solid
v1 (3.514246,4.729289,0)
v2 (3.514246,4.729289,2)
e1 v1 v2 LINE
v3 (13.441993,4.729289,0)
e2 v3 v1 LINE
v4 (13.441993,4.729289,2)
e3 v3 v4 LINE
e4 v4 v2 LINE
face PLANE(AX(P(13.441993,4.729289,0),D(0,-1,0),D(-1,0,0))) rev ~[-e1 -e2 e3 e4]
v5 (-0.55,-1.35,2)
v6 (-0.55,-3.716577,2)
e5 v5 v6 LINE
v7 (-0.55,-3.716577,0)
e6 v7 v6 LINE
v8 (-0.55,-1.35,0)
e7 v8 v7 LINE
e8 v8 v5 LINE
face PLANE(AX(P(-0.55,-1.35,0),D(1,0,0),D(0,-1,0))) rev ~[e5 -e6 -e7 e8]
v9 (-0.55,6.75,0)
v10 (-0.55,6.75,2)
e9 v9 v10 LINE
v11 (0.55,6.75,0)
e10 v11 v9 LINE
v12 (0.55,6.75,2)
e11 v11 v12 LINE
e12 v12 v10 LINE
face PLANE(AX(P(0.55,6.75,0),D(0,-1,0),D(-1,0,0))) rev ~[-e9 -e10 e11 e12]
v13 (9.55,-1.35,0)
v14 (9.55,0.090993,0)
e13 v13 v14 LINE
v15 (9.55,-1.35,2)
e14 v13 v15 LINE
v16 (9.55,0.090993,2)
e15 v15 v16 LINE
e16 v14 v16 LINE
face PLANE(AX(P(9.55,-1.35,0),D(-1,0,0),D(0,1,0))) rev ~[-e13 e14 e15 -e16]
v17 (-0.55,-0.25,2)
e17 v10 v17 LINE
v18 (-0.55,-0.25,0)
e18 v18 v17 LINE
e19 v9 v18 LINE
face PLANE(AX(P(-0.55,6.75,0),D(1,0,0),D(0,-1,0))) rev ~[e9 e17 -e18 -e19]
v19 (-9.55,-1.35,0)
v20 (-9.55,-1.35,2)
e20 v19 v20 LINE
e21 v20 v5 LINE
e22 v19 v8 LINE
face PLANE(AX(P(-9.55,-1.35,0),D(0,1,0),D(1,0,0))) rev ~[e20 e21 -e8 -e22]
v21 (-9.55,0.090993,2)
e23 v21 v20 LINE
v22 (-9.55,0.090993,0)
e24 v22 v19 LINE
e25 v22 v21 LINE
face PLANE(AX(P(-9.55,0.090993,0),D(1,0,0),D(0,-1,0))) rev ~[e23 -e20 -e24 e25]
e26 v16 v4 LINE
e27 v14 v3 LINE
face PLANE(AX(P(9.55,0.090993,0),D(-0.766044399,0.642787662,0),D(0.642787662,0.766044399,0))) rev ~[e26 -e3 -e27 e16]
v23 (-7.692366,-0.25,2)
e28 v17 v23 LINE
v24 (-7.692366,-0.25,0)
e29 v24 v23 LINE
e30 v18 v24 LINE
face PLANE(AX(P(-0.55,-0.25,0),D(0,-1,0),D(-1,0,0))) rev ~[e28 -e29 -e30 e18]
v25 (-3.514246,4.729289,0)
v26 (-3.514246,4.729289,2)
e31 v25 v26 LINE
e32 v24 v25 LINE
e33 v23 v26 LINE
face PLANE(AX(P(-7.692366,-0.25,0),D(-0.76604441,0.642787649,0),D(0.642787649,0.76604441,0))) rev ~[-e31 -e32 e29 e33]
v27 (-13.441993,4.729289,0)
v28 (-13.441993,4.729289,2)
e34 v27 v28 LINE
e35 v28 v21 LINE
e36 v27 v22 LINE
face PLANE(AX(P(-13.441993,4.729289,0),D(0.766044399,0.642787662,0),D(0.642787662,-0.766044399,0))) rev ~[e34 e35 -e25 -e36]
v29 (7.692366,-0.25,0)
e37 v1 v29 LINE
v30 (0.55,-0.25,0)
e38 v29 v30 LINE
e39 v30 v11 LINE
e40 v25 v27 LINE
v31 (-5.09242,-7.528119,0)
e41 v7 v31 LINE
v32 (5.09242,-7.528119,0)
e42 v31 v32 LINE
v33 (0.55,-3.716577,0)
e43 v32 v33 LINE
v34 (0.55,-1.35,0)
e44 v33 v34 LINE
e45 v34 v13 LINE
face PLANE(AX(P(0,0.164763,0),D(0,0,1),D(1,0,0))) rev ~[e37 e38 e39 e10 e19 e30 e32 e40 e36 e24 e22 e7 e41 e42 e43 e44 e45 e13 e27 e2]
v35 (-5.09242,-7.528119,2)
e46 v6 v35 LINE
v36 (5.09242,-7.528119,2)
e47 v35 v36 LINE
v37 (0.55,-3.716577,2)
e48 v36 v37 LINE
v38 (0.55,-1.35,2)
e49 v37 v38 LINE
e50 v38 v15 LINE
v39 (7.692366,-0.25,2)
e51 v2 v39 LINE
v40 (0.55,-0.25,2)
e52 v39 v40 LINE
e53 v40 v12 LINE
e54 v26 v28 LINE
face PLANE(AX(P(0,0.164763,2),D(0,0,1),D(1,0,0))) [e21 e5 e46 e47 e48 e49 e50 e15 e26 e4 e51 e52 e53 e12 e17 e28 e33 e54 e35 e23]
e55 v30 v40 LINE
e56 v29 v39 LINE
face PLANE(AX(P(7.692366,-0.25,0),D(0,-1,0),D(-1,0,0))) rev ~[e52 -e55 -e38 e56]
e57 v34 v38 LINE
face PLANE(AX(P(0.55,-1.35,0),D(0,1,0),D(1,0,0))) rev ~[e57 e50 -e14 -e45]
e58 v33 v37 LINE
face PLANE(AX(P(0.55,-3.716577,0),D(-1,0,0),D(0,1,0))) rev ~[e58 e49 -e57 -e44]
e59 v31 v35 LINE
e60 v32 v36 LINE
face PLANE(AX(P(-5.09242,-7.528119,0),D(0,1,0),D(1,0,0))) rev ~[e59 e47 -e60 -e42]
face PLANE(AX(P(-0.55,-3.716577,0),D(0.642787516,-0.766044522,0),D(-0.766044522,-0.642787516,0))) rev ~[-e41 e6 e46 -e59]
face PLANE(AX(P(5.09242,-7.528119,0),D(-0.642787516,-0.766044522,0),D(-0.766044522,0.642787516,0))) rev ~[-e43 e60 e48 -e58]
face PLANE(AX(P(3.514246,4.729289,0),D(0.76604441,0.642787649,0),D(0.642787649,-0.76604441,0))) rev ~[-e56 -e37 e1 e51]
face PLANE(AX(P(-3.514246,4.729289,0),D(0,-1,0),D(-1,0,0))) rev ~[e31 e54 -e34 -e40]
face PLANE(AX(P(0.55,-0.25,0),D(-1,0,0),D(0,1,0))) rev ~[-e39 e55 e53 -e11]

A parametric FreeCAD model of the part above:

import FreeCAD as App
import Part
import Sketcher
Q = App.Units.Quantity

doc = App.newDocument("Part")
body = doc.addObject("PartDesign::Body", "Body")

# Sketch on XY plane
sketch1 = doc.addObject("Sketcher::SketchObject", "Sketch")
body.addObject(sketch1)
sketch1.AttachmentSupport = (doc.XY_Plane, [""])
sketch1.MapMode = "FlatFace"
sketch1.addGeometry(Part.LineSegment(App.Vector(-9.6, 0.1, 0), App.Vector(-9.6, -1.4, 0)), False)
sketch1.addGeometry(Part.LineSegment(App.Vector(-9.6, -1.4, 0), App.Vector(-0.6, -1.4, 0)), False)
sketch1.addGeometry(Part.LineSegment(App.Vector(-0.6, -1.4, 0), App.Vector(-0.6, -3.7, 0)), False)
sketch1.addGeometry(Part.LineSegment(App.Vector(-0.6, -3.7, 0), App.Vector(-5.1, -7.5, 0)), False)
sketch1.addGeometry(Part.LineSegment(App.Vector(-5.1, -7.5, 0), App.Vector(5.1, -7.5, 0)), False)
sketch1.addGeometry(Part.LineSegment(App.Vector(5.1, -7.5, 0), App.Vector(0.6, -3.7, 0)), False)
sketch1.addGeometry(Part.LineSegment(App.Vector(0.6, -3.7, 0), App.Vector(0.6, -1.4, 0)), False)
sketch1.addGeometry(Part.LineSegment(App.Vector(0.6, -1.4, 0), App.Vector(9.6, -1.4, 0)), False)
sketch1.addGeometry(Part.LineSegment(App.Vector(9.6, -1.4, 0), App.Vector(9.6, 0.1, 0)), False)
sketch1.addGeometry(Part.LineSegment(App.Vector(9.6, 0.1, 0), App.Vector(13.4, 4.7, 0)), False)
sketch1.addGeometry(Part.LineSegment(App.Vector(13.4, 4.7, 0), App.Vector(3.5, 4.7, 0)), False)
sketch1.addGeometry(Part.LineSegment(App.Vector(3.5, 4.7, 0), App.Vector(7.7, -0.2, 0)), False)
sketch1.addGeometry(Part.LineSegment(App.Vector(7.7, -0.2, 0), App.Vector(0.6, -0.2, 0)), False)
sketch1.addGeometry(Part.LineSegment(App.Vector(0.6, -0.2, 0), App.Vector(0.6, 6.8, 0)), False)
sketch1.addGeometry(Part.LineSegment(App.Vector(0.6, 6.8, 0), App.Vector(-0.6, 6.8, 0)), False)
sketch1.addGeometry(Part.LineSegment(App.Vector(-0.6, 6.8, 0), App.Vector(-0.6, -0.2, 0)), False)
sketch1.addGeometry(Part.LineSegment(App.Vector(-0.6, -0.2, 0), App.Vector(-7.7, -0.2, 0)), False)
sketch1.addGeometry(Part.LineSegment(App.Vector(-7.7, -0.2, 0), App.Vector(-3.5, 4.7, 0)), False)
sketch1.addGeometry(Part.LineSegment(App.Vector(-3.5, 4.7, 0), App.Vector(-13.4, 4.7, 0)), False)
sketch1.addGeometry(Part.LineSegment(App.Vector(-13.4, 4.7, 0), App.Vector(-9.6, 0.1, 0)), False)
sketch1.addConstraint(Sketcher.Constraint("Coincident", 0, 2, 1, 1))
sketch1.addConstraint(Sketcher.Constraint("Coincident", 1, 2, 2, 1))
sketch1.addConstraint(Sketcher.Constraint("Coincident", 2, 2, 3, 1))
sketch1.addConstraint(Sketcher.Constraint("Coincident", 3, 2, 4, 1))
sketch1.addConstraint(Sketcher.Constraint("Coincident", 4, 2, 5, 1))
sketch1.addConstraint(Sketcher.Constraint("Coincident", 5, 2, 6, 1))
sketch1.addConstraint(Sketcher.Constraint("Coincident", 6, 2, 7, 1))
sketch1.addConstraint(Sketcher.Constraint("Coincident", 7, 2, 8, 1))
sketch1.addConstraint(Sketcher.Constraint("Coincident", 8, 2, 9, 1))
sketch1.addConstraint(Sketcher.Constraint("Coincident", 9, 2, 10, 1))
sketch1.addConstraint(Sketcher.Constraint("Coincident", 10, 2, 11, 1))
sketch1.addConstraint(Sketcher.Constraint("Coincident", 11, 2, 12, 1))
sketch1.addConstraint(Sketcher.Constraint("Coincident", 12, 2, 13, 1))
sketch1.addConstraint(Sketcher.Constraint("Coincident", 13, 2, 14, 1))
sketch1.addConstraint(Sketcher.Constraint("Coincident", 14, 2, 15, 1))
sketch1.addConstraint(Sketcher.Constraint("Coincident", 15, 2, 16, 1))
sketch1.addConstraint(Sketcher.Constraint("Coincident", 16, 2, 17, 1))
sketch1.addConstraint(Sketcher.Constraint("Coincident", 17, 2, 18, 1))
sketch1.addConstraint(Sketcher.Constraint("Coincident", 18, 2, 19, 1))
sketch1.addConstraint(Sketcher.Constraint("Coincident", 19, 2, 0, 1))
sketch1.addConstraint(Sketcher.Constraint("Vertical", 0))
sketch1.addConstraint(Sketcher.Constraint("Horizontal", 1))
sketch1.addConstraint(Sketcher.Constraint("Vertical", 2))
sketch1.addConstraint(Sketcher.Constraint("Horizontal", 4))
sketch1.addConstraint(Sketcher.Constraint("Vertical", 6))
sketch1.addConstraint(Sketcher.Constraint("Horizontal", 7))
sketch1.addConstraint(Sketcher.Constraint("Vertical", 8))
sketch1.addConstraint(Sketcher.Constraint("Horizontal", 10))
sketch1.addConstraint(Sketcher.Constraint("Horizontal", 12))
sketch1.addConstraint(Sketcher.Constraint("Vertical", 13))
sketch1.addConstraint(Sketcher.Constraint("Horizontal", 14))
sketch1.addConstraint(Sketcher.Constraint("Vertical", 15))
sketch1.addConstraint(Sketcher.Constraint("Horizontal", 16))
sketch1.addConstraint(Sketcher.Constraint("Horizontal", 18))
sketch1.addConstraint(Sketcher.Constraint("Symmetric", 2, 2, 5, 2, -2))
sketch1.addConstraint(Sketcher.Constraint("Symmetric", 0, 2, 7, 2, -2))
sketch1.addConstraint(Sketcher.Constraint("Symmetric", 12, 2, 15, 2, -2))
sketch1.addConstraint(Sketcher.Constraint("Symmetric", 10, 2, 17, 2, -2))
sketch1.addConstraint(Sketcher.Constraint("Perpendicular", 5, 9))
sketch1.addConstraint(Sketcher.Constraint("Perpendicular", 3, 11))
sketch1.addConstraint(Sketcher.Constraint("Parallel", 9, 17))
sketch1.addConstraint(Sketcher.Constraint("Parallel", 11, 19))
sketch1.addConstraint(Sketcher.Constraint("Horizontal", 8, 2, 19, 2))
sketch1.addConstraint(Sketcher.Constraint("Vertical", 6, 2, 12, 2))
sketch1.addConstraint(Sketcher.Constraint("Equal", 12, 16))
sketch1.addConstraint(Sketcher.Constraint("DistanceX", 1, 1, 1, 2, Q("9 mm")))
sketch1.addConstraint(Sketcher.Constraint("DistanceY", 13, 1, 13, 2, Q("7 mm")))
sketch1.addConstraint(Sketcher.Constraint("Angle", 3, Q("-140.000007 deg")))
sketch1.addConstraint(Sketcher.Constraint("DistanceX", 14, 2, 14, 1, Q("1.1 mm")))
sketch1.addConstraint(Sketcher.Constraint("Distance", 11, Q("6.5 mm")))
sketch1.addConstraint(Sketcher.Constraint("DistanceY", 7, 2, 11, 2, Q("1.1 mm")))
sketch1.addConstraint(Sketcher.Constraint("DistanceY", 0, 2, -1, 1, Q("1.35 mm")))
sketch1.addConstraint(Sketcher.Constraint("DistanceX", 4, 1, 4, 2, Q("10.18484 mm")))
sketch1.addConstraint(Sketcher.Constraint("DistanceX", 10, 2, 10, 1, Q("9.927747 mm")))
sketch1.addConstraint(Sketcher.Constraint("DistanceX", 12, 2, 12, 1, Q("7.142366 mm")))
sketch1.addConstraint(Sketcher.Constraint("DistanceY", 2, 2, 2, 1, Q("2.366577 mm")))
pad1 = doc.addObject("PartDesign::Pad", "Pad")
body.addObject(pad1)
pad1.Profile = sketch1
pad1.Length = 2

doc.recompute()
